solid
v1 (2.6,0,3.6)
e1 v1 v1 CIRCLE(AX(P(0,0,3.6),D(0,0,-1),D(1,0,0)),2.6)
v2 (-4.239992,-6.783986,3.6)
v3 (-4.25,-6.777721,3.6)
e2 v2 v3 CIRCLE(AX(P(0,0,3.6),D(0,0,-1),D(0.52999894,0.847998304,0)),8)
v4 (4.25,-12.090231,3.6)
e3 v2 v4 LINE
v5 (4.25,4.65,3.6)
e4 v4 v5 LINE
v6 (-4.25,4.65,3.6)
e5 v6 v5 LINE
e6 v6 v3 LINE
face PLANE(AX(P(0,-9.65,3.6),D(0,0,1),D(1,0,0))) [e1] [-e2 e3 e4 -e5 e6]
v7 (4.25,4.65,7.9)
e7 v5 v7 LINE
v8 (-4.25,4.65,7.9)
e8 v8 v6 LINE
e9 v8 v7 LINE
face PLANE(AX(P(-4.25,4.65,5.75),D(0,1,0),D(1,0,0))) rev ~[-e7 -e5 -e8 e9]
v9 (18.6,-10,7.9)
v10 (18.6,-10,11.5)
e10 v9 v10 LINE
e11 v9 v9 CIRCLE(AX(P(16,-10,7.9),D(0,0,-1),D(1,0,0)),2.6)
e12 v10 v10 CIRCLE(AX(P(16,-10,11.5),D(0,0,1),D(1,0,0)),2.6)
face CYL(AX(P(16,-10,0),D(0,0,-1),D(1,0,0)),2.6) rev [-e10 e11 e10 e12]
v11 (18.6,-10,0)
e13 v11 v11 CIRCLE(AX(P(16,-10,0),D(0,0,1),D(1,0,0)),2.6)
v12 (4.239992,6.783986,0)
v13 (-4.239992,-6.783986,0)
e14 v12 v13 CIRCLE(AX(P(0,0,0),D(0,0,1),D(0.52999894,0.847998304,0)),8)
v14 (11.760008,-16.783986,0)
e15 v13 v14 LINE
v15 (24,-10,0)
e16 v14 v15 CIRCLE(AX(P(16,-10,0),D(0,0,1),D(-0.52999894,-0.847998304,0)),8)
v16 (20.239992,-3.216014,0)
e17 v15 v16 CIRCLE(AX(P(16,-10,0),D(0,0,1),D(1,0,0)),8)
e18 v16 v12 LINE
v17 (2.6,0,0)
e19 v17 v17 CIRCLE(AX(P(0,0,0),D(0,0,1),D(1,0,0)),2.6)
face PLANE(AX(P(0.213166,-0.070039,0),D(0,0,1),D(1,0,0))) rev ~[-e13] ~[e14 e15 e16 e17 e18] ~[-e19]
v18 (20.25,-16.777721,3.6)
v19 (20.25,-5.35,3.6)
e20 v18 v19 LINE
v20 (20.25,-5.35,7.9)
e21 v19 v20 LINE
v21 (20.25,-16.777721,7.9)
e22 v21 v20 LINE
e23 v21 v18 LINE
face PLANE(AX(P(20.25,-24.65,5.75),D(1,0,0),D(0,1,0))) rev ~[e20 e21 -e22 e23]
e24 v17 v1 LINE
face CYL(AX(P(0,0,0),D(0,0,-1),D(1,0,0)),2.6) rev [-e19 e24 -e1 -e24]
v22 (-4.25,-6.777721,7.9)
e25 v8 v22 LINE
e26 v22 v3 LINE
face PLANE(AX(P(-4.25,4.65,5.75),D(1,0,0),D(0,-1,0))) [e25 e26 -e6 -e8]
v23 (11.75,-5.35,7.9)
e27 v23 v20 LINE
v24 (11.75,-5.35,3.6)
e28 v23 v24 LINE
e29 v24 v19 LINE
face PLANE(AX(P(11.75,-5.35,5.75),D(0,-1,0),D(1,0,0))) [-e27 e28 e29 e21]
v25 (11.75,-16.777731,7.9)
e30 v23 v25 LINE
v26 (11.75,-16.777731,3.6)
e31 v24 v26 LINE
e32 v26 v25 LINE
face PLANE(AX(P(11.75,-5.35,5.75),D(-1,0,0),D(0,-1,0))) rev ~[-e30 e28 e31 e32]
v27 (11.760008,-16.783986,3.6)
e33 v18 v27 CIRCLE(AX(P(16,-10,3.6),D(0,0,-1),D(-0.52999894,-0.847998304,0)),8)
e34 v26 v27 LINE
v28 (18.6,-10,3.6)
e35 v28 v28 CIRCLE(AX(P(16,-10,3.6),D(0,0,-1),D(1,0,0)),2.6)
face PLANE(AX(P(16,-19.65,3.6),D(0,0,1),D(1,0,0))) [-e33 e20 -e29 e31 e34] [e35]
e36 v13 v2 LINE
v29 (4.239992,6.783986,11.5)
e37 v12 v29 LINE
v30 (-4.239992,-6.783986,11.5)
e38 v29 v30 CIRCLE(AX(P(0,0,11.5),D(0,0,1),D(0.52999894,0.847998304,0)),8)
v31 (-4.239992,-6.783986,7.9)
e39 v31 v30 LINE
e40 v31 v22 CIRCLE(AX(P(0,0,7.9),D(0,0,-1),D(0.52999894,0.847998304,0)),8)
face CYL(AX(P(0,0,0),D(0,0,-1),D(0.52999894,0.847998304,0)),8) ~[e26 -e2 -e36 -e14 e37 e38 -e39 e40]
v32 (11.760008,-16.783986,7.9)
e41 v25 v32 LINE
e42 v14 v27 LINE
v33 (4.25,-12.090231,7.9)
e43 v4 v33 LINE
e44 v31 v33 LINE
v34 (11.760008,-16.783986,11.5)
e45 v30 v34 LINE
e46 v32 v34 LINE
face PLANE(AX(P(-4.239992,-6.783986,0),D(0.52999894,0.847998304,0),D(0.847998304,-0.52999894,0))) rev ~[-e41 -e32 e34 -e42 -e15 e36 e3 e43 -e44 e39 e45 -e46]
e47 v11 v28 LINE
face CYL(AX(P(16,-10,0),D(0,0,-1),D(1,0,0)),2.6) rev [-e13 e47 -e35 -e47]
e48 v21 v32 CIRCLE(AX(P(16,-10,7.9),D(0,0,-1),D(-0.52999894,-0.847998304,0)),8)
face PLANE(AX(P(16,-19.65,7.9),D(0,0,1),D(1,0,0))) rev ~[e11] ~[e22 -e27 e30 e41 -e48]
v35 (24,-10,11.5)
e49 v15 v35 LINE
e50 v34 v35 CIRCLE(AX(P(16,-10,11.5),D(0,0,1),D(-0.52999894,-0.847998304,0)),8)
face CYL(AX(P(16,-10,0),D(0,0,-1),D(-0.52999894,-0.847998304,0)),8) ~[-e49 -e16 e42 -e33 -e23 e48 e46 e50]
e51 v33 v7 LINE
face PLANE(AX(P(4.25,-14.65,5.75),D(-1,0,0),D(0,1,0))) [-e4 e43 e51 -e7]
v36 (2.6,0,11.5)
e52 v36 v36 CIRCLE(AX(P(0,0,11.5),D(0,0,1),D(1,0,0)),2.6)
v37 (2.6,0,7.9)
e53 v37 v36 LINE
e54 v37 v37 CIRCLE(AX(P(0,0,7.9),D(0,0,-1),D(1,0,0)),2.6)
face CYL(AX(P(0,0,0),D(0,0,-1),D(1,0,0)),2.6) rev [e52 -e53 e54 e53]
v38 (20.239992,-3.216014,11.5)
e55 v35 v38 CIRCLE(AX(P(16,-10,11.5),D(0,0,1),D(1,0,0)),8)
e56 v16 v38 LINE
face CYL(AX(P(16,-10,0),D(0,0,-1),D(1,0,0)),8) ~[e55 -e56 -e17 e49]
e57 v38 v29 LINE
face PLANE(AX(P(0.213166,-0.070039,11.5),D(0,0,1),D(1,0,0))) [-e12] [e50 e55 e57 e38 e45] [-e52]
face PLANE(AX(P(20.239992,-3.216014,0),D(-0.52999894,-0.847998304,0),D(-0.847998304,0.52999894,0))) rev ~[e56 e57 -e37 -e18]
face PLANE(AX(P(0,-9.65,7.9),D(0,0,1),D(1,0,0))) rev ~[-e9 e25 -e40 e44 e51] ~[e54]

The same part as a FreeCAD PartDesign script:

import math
import FreeCAD as App
import Part
import Sketcher

V = App.Vector


def add_polygon(sketch, points):
    """Adds a closed chain of lines whose ends are joined by coincident constraints."""
    first, n = sketch.GeometryCount, len(points)
    for a, b in zip(points, points[1:] + points[:1]):
        sketch.addGeometry(Part.LineSegment(App.Vector(*a, 0), App.Vector(*b, 0)), False)
    for i in range(n):
        sketch.addConstraint(Sketcher.Constraint("Coincident", first + i, 2, first + (i + 1) % n, 1))

doc = App.newDocument("Part")
params = doc.addObject("Spreadsheet::Sheet", "Params")
for row, (alias, value) in enumerate([
    ("sketch1_radius", "8 mm"),
    ("sketch1_diameter", "5.2 mm"),
    ("pad1_length", "11.5 mm"),
    ("sketch2_width", "8.5 mm"),
    ("sketch2_height", "19.3 mm"),
    ("pocket1_length", "4.3 mm"),
], start=1):
    params.set(f"A{row}", alias)
    params.set(f"B{row}", "=" + value)
    params.setAlias(f"B{row}", alias)

body = doc.addObject("PartDesign::Body", "Body")

# Sketch on XY plane
sketch1 = body.newObject("Sketcher::SketchObject", "Sketch")
sketch1.AttachmentSupport = (doc.getObject("XY_Plane"), [""])
sketch1.MapMode = "FlatFace"
sketch1.addGeometry([
    Part.ArcOfCircle(Part.Circle(V(0, 0, 0), V(0, 0, 1), 8), math.radians(58), math.radians(238)),  # 0
    Part.LineSegment(V(-4.2, -6.8, 0), V(11.8, -16.8, 0)),  # 1
    Part.ArcOfCircle(Part.Circle(V(16, -10, 0), V(0, 0, 1), 8), math.radians(-122), math.radians(0)),  # 2
    Part.ArcOfCircle(Part.Circle(V(16, -10, 0), V(0, 0, 1), 8), math.radians(0), math.radians(58)),  # 3
    Part.LineSegment(V(20.2, -3.2, 0), V(4.2, 6.8, 0)),  # 4
    Part.Circle(V(16, -10, 0), V(0, 0, 1), 2.6),  # 5
    Part.Circle(V(0, 0, 0), V(0, 0, 1), 2.6),  # 6
], False)
sketch1.addConstraint([
    Sketcher.Constraint("Tangent", 0, 2, 1, 1),
    Sketcher.Constraint("Tangent", 1, 2, 2, 1),
    Sketcher.Constraint("Tangent", 2, 2, 3, 1),
    Sketcher.Constraint("Tangent", 3, 2, 4, 1),
    Sketcher.Constraint("Tangent", 4, 2, 0, 1),
    Sketcher.Constraint("Coincident", 0, 3, -1, 1),
    Sketcher.Constraint("Coincident", 6, 3, -1, 1),
    Sketcher.Constraint("Coincident", 5, 3, 2, 3),
    Sketcher.Constraint("Equal", 0, 2),
    Sketcher.Constraint("Equal", 2, 3),
    Sketcher.Constraint("Equal", 5, 6),
    Sketcher.Constraint("Horizontal", 5, 3, 2, 2),
    Sketcher.Constraint("Radius", 0, 8.0),
    Sketcher.Constraint("Diameter", 5, 5.2),
    Sketcher.Constraint("DistanceX", -1, 1, 2, 3, 16.0),
    Sketcher.Constraint("DistanceY", 2, 3, -1, 1, 10.0),
])
sketch1.setExpression("Constraints[12]", "Params.sketch1_radius")
sketch1.setExpression("Constraints[13]", "Params.sketch1_diameter")
pad1 = body.newObject("PartDesign::Pad", "Pad")
pad1.Profile = sketch1
pad1.setExpression("Length", "Params.pad1_length")

# Sketch on XY plane
sketch2 = body.newObject("Sketcher::SketchObject", "Sketch001")
sketch2.AttachmentSupport = (doc.getObject("XY_Plane"), [""])
sketch2.MapMode = "FlatFace"
sketch2.AttachmentOffset = App.Placement(V(0, 0, 5.75), App.Rotation())
add_polygon(sketch2, [(-4, -15), (4, -15), (4, 5), (-4, 5)])  # lines 0-3
add_polygon(sketch2, [(12, -25), (20, -25), (20, -5), (12, -5)])  # lines 4-7
sketch2.addConstraint([
    Sketcher.Constraint("Horizontal", 0),
    Sketcher.Constraint("Vertical", 1),
    Sketcher.Constraint("Horizontal", 2),
    Sketcher.Constraint("Vertical", 3),
    Sketcher.Constraint("Horizontal", 4),
    Sketcher.Constraint("Vertical", 5),
    Sketcher.Constraint("Horizontal", 6),
    Sketcher.Constraint("Vertical", 7),
    Sketcher.Constraint("Equal", 2, 4),
    Sketcher.Constraint("Equal", 3, 5),
    Sketcher.Constraint("DistanceX", 0, 1, 0, 2, 8.5),
    Sketcher.Constraint("DistanceY", 1, 1, 1, 2, 19.3),
    Sketcher.Constraint("DistanceX", 0, 2, 4, 2, 16.0),
    Sketcher.Constraint("DistanceY", 4, 2, 0, 2, 10.0),
    Sketcher.Constraint("DistanceX", -1, 1, 0, 2, 4.25),
    Sketcher.Constraint("DistanceY", 0, 2, -1, 1, 14.65),
])
sketch2.setExpression("Constraints[18]", "Params.sketch2_width")
sketch2.setExpression("Constraints[19]", "Params.sketch2_height")
pocket1 = body.newObject("PartDesign::Pocket", "Pocket")
pocket1.Profile = sketch2
pocket1.setExpression("Length", "Params.pocket1_length")
pocket1.Midplane = True

doc.recompute()
